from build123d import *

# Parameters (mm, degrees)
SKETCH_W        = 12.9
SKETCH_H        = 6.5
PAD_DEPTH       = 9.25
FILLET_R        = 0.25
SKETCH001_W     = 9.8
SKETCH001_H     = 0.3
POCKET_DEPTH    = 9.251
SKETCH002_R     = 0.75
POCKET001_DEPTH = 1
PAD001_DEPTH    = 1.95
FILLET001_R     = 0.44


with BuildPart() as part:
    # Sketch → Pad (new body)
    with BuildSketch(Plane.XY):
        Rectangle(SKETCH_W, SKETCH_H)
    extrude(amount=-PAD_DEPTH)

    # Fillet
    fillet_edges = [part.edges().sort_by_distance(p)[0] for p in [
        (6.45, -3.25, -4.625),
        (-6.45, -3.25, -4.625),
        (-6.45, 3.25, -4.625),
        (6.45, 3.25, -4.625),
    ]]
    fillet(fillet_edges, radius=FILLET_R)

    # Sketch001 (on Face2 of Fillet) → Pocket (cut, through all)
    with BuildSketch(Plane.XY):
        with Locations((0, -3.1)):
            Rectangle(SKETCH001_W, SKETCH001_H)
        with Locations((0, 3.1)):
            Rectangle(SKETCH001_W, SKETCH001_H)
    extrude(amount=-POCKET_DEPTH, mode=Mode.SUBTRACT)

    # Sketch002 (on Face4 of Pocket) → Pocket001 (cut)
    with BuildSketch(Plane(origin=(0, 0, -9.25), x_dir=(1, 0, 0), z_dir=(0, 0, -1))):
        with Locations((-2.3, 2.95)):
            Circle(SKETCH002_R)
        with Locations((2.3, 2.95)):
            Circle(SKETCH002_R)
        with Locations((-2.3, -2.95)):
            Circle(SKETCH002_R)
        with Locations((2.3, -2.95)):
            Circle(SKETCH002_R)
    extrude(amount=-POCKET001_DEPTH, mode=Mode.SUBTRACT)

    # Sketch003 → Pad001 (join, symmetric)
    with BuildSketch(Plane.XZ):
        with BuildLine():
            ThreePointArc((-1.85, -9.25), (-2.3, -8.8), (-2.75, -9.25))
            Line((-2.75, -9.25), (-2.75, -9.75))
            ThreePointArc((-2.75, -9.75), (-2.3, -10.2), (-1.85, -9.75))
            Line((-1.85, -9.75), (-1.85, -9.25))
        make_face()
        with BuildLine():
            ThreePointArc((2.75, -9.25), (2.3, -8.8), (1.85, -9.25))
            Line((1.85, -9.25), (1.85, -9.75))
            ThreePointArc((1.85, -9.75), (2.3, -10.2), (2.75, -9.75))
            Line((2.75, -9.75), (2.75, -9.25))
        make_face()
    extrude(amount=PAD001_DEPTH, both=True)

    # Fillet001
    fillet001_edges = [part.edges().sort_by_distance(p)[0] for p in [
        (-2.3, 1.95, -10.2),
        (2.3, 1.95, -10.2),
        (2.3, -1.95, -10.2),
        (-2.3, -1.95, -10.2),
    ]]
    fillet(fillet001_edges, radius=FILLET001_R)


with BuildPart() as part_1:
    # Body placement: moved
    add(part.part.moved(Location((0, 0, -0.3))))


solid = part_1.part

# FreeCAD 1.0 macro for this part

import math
import FreeCAD as App
import Part
import Sketcher


def edges_at(feature, points):
    """Names of the edges that pass closest to the given points."""
    edges = feature.Shape.Edges
    near = lambda p: min(range(len(edges)), key=lambda i: edges[i].distToShape(Part.Vertex(*p))[0])
    return sorted({f"Edge{near(p) + 1}" for p in points})


def add_polygon(sketch, points):
    """Adds a closed chain of lines whose ends are joined by coincident constraints."""
    first, n = sketch.GeometryCount, len(points)
    for a, b in zip(points, points[1:] + points[:1]):
        sketch.addGeometry(Part.LineSegment(App.Vector(*a, 0), App.Vector(*b, 0)), False)
    for i in range(n):
        sketch.addConstraint(Sketcher.Constraint("Coincident", first + i, 2, first + (i + 1) % n, 1))

doc = App.newDocument("Part")
params = doc.addObject("Spreadsheet::Sheet", "Params")
for row, (alias, value) in enumerate([
    ("sketch1_width", "12.9 mm"),
    ("sketch1_height", "6.5 mm"),
    ("pad1_length", "9.25 mm"),
    ("fillet_radius", "0.25 mm"),
    ("sketch2_width", "9.8 mm"),
    ("sketch2_height", "0.3 mm"),
    ("sketch3_diameter", "1.5 mm"),
    ("pocket2_length", "1 mm"),
    ("sketch4_radius", "0.45 mm"),
    ("sketch4_height", "0.5 mm"),
    ("pad2_length", "3.9 mm"),
    ("fillet2_radius", "0.44 mm"),
], start=1):
    params.set(f"A{row}", alias)
    params.set(f"B{row}", "=" + value)
    params.setAlias(f"B{row}", alias)

body = doc.addObject("PartDesign::Body", "Body")

# Sketch on XY plane
sketch1 = body.newObject("Sketcher::SketchObject", "Sketch")
sketch1.AttachmentSupport = (doc.getObject("XY_Plane"), [""])
sketch1.MapMode = "FlatFace"
add_polygon(sketch1, [(-6.45, 3.25), (-6.45, -3.25), (6.45, -3.25), (6.45, 3.25)])  # lines 0-3
sketch1.addConstraint([
    Sketcher.Constraint("Vertical", 0),
    Sketcher.Constraint("Horizontal", 1),
    Sketcher.Constraint("Vertical", 2),
    Sketcher.Constraint("Horizontal", 3),
    Sketcher.Constraint("Symmetric", 0, 2, 2, 2, -1, 1),
    Sketcher.Constraint("DistanceX", 1, 1, 1, 2, 12.9),
    Sketcher.Constraint("DistanceY", 0, 2, 0, 1, 6.5),
])
sketch1.setExpression("Constraints[9]", "Params.sketch1_width")
sketch1.setExpression("Constraints[10]", "Params.sketch1_height")
pad1 = body.newObject("PartDesign::Pad", "Pad")
pad1.Profile = sketch1
pad1.setExpression("Length", "Params.pad1_length")
pad1.Reversed = True
doc.recompute()

fillet = body.newObject("PartDesign::Fillet", "Fillet")
fillet.Base = (pad1, edges_at(pad1, [
    (6.45, -3.25, -4.625),
    (-6.45, -3.25, -4.625),
    (-6.45, 3.25, -4.625),
    (6.45, 3.25, -4.625),
]))
fillet.setExpression("Radius", "Params.fillet_radius")

# Sketch on XY plane
sketch2 = body.newObject("Sketcher::SketchObject", "Sketch001")
sketch2.AttachmentSupport = (doc.getObject("XY_Plane"), [""])
sketch2.MapMode = "FlatFace"
add_polygon(sketch2, [(-4.9, -2.95), (-4.9, -3.25), (4.9, -3.25), (4.9, -2.95)])  # lines 0-3
add_polygon(sketch2, [(-4.9, 3.25), (-4.9, 2.95), (4.9, 2.95), (4.9, 3.25)])  # lines 4-7
sketch2.addConstraint([
    Sketcher.Constraint("Vertical", 0),
    Sketcher.Constraint("Horizontal", 1),
    Sketcher.Constraint("Vertical", 2),
    Sketcher.Constraint("Horizontal", 3),
    Sketcher.Constraint("Vertical", 4),
    Sketcher.Constraint("Horizontal", 5),
    Sketcher.Constraint("Vertical", 6),
    Sketcher.Constraint("Horizontal", 7),
    Sketcher.Constraint("Symmetric", 2, 2, 4, 2, -1, 1),
    Sketcher.Constraint("Symmetric", 0, 2, 6, 2, -1, 1),
    Sketcher.Constraint("Vertical", 3, 2, 4, 2),
    Sketcher.Constraint("DistanceX", 1, 1, 1, 2, 9.8),
    Sketcher.Constraint("DistanceY", 0, 2, 0, 1, 0.3),
    Sketcher.Constraint("DistanceY", 3, 2, 4, 2, 5.9),
])
sketch2.setExpression("Constraints[19]", "Params.sketch2_width")
sketch2.setExpression("Constraints[20]", "Params.sketch2_height")
pocket1 = body.newObject("PartDesign::Pocket", "Pocket")
pocket1.Profile = sketch2
pocket1.Type = "ThroughAll"

# Sketch on XY plane
sketch3 = body.newObject("Sketcher::SketchObject", "Sketch002")
sketch3.AttachmentSupport = (doc.getObject("XY_Plane"), [""])
sketch3.MapMode = "FlatFace"
sketch3.AttachmentOffset = App.Placement(App.Vector(0, 0, -9.25), App.Rotation())
sketch3.addGeometry([
    Part.Circle(App.Vector(-2.3, -2.95, 0), App.Vector(0, 0, 1), 0.75),
    Part.Circle(App.Vector(2.3, -2.95, 0), App.Vector(0, 0, 1), 0.75),
    Part.Circle(App.Vector(-2.3, 2.95, 0), App.Vector(0, 0, 1), 0.75),
    Part.Circle(App.Vector(2.3, 2.95, 0), App.Vector(0, 0, 1), 0.75),
], False)
sketch3.addConstraint([
    Sketcher.Constraint("Equal", 0, 1),
    Sketcher.Constraint("Equal", 1, 2),
    Sketcher.Constraint("Equal", 2, 3),
    Sketcher.Constraint("Symmetric", 1, 3, 2, 3, -1, 1),
    Sketcher.Constraint("Symmetric", 0, 3, 3, 3, -1, 1),
    Sketcher.Constraint("Symmetric", 0, 3, 1, 3, -2),
    Sketcher.Constraint("Diameter", 0, 1.5),
    Sketcher.Constraint("DistanceX", 0, 3, -1, 1, 2.3),
    Sketcher.Constraint("DistanceY", 0, 3, 2, 3, 5.9),
])
sketch3.setExpression("Constraints[6]", "Params.sketch3_diameter")
pocket2 = body.newObject("PartDesign::Pocket", "Pocket001")
pocket2.Profile = sketch3
pocket2.setExpression("Length", "Params.pocket2_length")
pocket2.Reversed = True

# Sketch on XZ plane
sketch4 = body.newObject("Sketcher::SketchObject", "Sketch003")
sketch4.AttachmentSupport = (doc.getObject("XZ_Plane"), [""])
sketch4.MapMode = "FlatFace"
sketch4.addGeometry([
    Part.ArcOfCircle(Part.Circle(App.Vector(-2.3, -9.25, 0), App.Vector(0, 0, 1), 0.45), math.radians(0), math.radians(180)),  # 0
    Part.LineSegment(App.Vector(-2.75, -9.25, 0), App.Vector(-2.75, -9.75, 0)),  # 1
    Part.ArcOfCircle(Part.Circle(App.Vector(-2.3, -9.75, 0), App.Vector(0, 0, 1), 0.45), math.radians(180), math.radians(360)),  # 2
    Part.LineSegment(App.Vector(-1.85, -9.75, 0), App.Vector(-1.85, -9.25, 0)),  # 3
    Part.ArcOfCircle(Part.Circle(App.Vector(2.3, -9.25, 0), App.Vector(0, 0, 1), 0.45), math.radians(0), math.radians(180)),  # 4
    Part.LineSegment(App.Vector(1.85, -9.25, 0), App.Vector(1.85, -9.75, 0)),  # 5
    Part.ArcOfCircle(Part.Circle(App.Vector(2.3, -9.75, 0), App.Vector(0, 0, 1), 0.45), math.radians(180), math.radians(360)),  # 6
    Part.LineSegment(App.Vector(2.75, -9.75, 0), App.Vector(2.75, -9.25, 0)),  # 7
], False)
sketch4.addConstraint([
    Sketcher.Constraint("Tangent", 0, 2, 1, 1),
    Sketcher.Constraint("Tangent", 1, 2, 2, 1),
    Sketcher.Constraint("Tangent", 2, 2, 3, 1),
    Sketcher.Constraint("Tangent", 3, 2, 0, 1),
    Sketcher.Constraint("Tangent", 4, 2, 5, 1),
    Sketcher.Constraint("Tangent", 5, 2, 6, 1),
    Sketcher.Constraint("Tangent", 6, 2, 7, 1),
    Sketcher.Constraint("Tangent", 7, 2, 4, 1),
    Sketcher.Constraint("Vertical", 1),
    Sketcher.Constraint("Vertical", 3),
    Sketcher.Constraint("Vertical", 5),
    Sketcher.Constraint("Vertical", 7),
    Sketcher.Constraint("Equal", 2, 4),
    Sketcher.Constraint("Symmetric", 0, 3, 4, 3, -2),
    Sketcher.Constraint("Horizontal", 2, 3, 6, 3),
    Sketcher.Constraint("Radius", 0, 0.45),
    Sketcher.Constraint("DistanceY", 1, 2, 1, 1, 0.5),
    Sketcher.Constraint("DistanceX", 0, 3, -1, 1, 2.3),
    Sketcher.Constraint("DistanceY", 0, 3, -1, 1, 9.25),
])
sketch4.setExpression("Constraints[15]", "Params.sketch4_radius")
sketch4.setExpression("Constraints[16]", "Params.sketch4_height")
pad2 = body.newObject("PartDesign::Pad", "Pad001")
pad2.Profile = sketch4
pad2.setExpression("Length", "Params.pad2_length")
pad2.Midplane = True
doc.recompute()

fillet2 = body.newObject("PartDesign::Fillet", "Fillet001")
fillet2.Base = (pad2, edges_at(pad2, [
    (-2.3, 1.95, -10.2),
    (2.3, 1.95, -10.2),
    (2.3, -1.95, -10.2),
    (-2.3, -1.95, -10.2),
]))
fillet2.setExpression("Radius", "Params.fillet2_radius")
body2 = doc.addObject("PartDesign::Body", "Body001")
doc.recompute()

body.Placement = App.Placement(App.Vector(0, 0, -0.3), App.Rotation(App.Vector(0, 0, 1), 0))
boolean = body2.newObject("PartDesign::Boolean", "Boolean")
boolean.Type = "Fuse"
boolean.addObjects([body])

doc.recompute()
